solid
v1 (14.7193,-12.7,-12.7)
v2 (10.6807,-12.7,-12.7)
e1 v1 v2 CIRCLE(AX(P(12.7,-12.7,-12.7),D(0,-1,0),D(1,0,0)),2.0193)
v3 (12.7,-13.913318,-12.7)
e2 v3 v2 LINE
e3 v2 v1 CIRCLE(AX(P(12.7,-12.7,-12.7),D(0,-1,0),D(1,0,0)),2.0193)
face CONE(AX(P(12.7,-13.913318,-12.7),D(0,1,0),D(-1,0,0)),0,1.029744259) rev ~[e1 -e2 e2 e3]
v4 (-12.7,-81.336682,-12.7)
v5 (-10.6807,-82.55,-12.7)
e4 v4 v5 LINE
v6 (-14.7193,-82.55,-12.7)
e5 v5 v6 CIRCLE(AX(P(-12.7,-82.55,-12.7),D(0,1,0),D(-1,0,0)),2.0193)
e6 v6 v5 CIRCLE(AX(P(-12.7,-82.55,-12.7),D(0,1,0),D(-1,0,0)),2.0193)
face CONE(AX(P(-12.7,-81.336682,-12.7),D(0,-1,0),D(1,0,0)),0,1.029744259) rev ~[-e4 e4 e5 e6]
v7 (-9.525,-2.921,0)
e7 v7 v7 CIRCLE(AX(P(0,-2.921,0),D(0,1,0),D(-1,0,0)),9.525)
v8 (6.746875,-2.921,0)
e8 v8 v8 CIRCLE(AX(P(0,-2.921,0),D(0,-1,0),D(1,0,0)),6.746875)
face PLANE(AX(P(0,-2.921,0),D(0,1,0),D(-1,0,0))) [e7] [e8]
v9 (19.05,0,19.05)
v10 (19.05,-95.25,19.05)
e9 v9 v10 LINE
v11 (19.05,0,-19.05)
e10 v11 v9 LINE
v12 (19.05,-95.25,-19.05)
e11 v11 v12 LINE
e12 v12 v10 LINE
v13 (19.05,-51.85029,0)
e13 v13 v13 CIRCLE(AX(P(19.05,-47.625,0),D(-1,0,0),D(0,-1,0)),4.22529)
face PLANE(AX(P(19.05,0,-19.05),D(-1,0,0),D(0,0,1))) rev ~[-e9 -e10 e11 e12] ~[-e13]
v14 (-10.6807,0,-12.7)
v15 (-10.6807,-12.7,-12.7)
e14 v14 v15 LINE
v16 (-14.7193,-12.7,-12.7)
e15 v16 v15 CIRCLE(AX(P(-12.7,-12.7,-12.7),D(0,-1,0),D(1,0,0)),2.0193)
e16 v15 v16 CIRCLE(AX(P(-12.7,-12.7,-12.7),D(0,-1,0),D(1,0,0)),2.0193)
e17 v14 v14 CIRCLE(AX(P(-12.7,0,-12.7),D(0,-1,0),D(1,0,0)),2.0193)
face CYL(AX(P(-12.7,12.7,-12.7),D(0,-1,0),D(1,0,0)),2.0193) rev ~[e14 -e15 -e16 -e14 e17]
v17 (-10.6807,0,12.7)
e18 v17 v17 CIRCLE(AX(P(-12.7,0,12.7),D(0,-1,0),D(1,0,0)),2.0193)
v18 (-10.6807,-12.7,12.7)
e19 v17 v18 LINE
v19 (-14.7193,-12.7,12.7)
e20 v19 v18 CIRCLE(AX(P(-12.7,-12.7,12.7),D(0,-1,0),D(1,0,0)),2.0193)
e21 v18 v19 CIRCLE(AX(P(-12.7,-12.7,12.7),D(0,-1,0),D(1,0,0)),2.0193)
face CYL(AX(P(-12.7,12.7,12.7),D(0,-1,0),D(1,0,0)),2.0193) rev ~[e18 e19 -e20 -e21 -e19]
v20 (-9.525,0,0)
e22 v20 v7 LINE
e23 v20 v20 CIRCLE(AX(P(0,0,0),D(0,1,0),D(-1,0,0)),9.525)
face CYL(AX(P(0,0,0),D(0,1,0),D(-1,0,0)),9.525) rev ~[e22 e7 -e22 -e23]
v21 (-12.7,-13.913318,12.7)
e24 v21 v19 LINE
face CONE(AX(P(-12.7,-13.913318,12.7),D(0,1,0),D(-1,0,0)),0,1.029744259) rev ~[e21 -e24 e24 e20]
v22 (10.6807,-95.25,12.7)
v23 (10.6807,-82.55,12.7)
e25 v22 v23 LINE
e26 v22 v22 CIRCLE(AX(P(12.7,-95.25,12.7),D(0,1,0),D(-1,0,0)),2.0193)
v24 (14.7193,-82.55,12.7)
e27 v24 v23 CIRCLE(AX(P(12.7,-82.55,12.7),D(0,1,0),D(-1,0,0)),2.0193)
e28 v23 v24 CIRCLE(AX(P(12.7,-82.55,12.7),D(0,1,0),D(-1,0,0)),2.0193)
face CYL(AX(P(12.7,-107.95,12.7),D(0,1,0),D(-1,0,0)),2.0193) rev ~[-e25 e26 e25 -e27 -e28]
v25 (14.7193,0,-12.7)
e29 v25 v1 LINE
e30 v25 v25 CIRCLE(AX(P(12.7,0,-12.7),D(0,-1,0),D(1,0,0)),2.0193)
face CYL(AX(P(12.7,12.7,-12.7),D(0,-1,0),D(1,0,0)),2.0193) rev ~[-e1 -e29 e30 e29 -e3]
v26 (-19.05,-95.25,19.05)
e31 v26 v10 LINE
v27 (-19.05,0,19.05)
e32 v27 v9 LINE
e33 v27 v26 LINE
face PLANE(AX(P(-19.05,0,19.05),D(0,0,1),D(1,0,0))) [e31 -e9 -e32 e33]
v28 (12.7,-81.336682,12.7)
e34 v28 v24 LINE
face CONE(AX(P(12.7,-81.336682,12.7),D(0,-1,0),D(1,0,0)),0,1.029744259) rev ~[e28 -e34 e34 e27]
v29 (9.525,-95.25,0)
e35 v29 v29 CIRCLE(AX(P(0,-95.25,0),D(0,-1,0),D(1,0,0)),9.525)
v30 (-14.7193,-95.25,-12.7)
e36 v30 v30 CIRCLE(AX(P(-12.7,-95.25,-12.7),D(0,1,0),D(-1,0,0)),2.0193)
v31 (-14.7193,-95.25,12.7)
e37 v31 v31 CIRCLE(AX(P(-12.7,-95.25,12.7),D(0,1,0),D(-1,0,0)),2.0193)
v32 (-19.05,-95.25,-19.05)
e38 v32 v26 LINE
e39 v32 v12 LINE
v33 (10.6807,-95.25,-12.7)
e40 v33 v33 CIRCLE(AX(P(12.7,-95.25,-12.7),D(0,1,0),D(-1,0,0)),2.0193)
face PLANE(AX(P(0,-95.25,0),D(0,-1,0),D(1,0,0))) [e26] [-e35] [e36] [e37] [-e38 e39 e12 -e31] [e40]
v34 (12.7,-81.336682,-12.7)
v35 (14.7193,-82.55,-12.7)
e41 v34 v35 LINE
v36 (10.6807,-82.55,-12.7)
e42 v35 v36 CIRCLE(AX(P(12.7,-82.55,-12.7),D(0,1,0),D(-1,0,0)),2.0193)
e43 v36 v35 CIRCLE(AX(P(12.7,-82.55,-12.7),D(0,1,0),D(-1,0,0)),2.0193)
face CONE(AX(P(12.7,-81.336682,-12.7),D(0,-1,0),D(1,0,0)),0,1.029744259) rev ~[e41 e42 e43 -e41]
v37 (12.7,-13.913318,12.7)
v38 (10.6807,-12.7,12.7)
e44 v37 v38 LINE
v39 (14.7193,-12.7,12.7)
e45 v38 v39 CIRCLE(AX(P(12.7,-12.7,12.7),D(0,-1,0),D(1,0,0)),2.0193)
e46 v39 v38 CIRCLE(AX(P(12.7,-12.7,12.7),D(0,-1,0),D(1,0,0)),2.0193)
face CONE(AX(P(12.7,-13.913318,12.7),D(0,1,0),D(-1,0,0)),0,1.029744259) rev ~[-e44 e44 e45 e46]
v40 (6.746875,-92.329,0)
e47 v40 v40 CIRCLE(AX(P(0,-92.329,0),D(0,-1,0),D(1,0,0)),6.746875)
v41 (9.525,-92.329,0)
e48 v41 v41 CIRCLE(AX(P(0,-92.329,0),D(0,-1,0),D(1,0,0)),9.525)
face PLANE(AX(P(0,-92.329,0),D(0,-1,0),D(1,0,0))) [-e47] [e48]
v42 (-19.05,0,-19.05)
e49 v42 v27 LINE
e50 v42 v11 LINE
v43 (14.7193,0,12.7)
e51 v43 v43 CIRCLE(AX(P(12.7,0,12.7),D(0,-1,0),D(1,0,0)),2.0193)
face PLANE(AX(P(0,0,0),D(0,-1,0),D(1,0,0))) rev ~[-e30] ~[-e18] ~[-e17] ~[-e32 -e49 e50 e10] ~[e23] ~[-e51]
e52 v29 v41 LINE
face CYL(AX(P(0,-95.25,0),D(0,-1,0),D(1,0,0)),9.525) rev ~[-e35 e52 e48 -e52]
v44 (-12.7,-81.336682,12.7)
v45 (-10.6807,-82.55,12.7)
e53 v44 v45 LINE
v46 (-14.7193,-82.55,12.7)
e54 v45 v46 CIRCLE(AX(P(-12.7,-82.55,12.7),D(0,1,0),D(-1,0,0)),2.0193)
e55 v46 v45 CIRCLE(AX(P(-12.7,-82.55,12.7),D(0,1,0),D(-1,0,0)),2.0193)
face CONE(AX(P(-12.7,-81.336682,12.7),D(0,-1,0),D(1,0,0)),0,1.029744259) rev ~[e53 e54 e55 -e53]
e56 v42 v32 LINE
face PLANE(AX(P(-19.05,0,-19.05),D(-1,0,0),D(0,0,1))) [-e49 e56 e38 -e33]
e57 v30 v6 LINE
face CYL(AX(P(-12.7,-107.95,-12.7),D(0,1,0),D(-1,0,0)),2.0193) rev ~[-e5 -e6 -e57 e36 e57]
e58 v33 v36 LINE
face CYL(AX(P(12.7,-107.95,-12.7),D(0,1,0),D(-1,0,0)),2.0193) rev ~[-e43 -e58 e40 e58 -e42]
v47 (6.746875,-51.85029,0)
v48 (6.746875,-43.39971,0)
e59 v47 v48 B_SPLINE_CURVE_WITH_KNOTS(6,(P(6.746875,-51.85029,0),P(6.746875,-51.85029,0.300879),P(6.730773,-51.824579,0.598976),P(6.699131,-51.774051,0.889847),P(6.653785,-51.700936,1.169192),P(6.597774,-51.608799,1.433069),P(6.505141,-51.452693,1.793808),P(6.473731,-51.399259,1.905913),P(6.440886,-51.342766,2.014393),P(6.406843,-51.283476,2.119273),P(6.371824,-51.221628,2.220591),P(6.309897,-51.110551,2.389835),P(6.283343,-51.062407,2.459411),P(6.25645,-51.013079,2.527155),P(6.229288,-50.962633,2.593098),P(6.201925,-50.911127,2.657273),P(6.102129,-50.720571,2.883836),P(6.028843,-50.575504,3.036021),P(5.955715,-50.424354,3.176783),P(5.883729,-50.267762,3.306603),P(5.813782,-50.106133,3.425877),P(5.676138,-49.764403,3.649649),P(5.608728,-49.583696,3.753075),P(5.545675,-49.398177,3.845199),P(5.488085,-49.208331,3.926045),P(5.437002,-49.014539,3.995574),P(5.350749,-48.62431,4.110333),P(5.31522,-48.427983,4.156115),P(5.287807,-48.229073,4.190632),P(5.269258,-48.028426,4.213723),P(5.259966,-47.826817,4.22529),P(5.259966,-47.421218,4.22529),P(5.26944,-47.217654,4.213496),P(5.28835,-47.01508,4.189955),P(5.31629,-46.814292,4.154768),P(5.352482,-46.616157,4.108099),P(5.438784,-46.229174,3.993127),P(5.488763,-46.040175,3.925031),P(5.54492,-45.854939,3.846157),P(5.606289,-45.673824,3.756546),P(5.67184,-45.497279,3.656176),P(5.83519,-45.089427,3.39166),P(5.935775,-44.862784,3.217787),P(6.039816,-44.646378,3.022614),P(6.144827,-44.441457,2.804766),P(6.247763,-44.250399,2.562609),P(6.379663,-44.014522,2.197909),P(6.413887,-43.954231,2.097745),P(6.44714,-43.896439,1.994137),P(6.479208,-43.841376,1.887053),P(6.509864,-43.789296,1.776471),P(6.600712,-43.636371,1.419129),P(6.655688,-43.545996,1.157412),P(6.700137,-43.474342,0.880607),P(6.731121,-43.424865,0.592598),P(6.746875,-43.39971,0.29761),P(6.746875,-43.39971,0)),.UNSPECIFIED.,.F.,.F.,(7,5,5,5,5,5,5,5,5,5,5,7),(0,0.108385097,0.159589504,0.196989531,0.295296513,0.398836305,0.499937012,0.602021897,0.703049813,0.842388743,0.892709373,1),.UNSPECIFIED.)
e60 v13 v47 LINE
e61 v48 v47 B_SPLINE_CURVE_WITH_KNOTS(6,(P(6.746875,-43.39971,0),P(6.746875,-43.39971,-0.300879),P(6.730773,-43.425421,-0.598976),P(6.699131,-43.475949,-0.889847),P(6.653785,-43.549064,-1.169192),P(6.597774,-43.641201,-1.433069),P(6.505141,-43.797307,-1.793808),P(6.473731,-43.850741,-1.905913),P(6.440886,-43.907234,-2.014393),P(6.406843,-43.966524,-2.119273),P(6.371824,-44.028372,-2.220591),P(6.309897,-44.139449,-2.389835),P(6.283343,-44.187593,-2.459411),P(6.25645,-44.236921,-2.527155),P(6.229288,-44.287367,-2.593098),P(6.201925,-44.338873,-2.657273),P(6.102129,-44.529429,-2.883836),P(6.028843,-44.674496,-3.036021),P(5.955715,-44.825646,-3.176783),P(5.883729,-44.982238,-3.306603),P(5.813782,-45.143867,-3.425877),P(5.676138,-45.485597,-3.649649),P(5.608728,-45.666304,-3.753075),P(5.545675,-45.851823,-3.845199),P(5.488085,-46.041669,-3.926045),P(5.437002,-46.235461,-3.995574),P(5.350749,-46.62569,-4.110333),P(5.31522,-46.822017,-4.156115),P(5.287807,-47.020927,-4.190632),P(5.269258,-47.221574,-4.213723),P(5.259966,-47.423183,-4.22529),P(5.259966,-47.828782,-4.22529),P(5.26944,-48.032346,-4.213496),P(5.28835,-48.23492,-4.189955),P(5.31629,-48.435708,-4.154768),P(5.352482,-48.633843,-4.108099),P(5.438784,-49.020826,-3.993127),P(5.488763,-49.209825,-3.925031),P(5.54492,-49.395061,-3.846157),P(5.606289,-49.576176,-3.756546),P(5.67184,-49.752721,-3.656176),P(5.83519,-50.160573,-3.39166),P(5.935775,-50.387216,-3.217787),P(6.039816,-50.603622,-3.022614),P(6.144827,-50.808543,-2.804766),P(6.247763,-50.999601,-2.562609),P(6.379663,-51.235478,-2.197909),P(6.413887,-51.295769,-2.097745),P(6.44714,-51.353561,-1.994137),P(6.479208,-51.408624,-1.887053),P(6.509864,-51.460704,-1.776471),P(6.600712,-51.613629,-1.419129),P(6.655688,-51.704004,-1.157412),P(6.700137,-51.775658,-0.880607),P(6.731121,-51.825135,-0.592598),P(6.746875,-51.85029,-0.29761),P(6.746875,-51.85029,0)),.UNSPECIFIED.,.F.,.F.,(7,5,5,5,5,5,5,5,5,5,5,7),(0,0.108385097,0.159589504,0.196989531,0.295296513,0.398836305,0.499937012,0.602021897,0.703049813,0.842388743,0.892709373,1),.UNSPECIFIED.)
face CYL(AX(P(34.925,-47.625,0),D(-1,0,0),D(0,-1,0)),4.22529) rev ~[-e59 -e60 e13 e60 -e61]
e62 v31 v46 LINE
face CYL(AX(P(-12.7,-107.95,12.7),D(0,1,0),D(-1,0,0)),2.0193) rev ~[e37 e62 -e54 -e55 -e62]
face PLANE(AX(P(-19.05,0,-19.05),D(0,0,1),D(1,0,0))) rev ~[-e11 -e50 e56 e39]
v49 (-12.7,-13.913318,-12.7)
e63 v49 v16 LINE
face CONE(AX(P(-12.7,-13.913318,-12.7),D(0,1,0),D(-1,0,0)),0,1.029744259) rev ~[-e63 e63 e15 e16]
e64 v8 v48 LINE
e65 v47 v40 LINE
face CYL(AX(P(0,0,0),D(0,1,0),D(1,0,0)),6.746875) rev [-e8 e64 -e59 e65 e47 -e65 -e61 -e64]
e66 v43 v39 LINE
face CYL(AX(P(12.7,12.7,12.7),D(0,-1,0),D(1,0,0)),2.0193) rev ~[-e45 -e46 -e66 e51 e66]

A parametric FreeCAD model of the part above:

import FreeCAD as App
import Part
import Sketcher
Q = App.Units.Quantity

doc = App.newDocument("Part")
body = doc.addObject("PartDesign::Body", "Body")

sketch1 = body.newObject("Sketcher::SketchObject", "Sketch")
sketch1.AttachmentSupport = (doc.getObject("XZ_Plane"), [""])
sketch1.MapMode = "FlatFace"
sketch1.addGeometry(Part.LineSegment(App.Vector(-19.05, 19.05, 0), App.Vector(-19.05, -19.05, 0)), False)
sketch1.addGeometry(Part.LineSegment(App.Vector(-19.05, -19.05, 0), App.Vector(19.05, -19.05, 0)), False)
sketch1.addGeometry(Part.LineSegment(App.Vector(19.05, -19.05, 0), App.Vector(19.05, 19.05, 0)), False)
sketch1.addGeometry(Part.LineSegment(App.Vector(19.05, 19.05, 0), App.Vector(-19.05, 19.05, 0)), False)
sketch1.addGeometry(Part.Circle(App.Vector(0, 0, 0), App.Vector(0, 0, 1), 6.746875), False)
sketch1.addConstraint(Sketcher.Constraint("Coincident", 0, 2, 1, 1))
sketch1.addConstraint(Sketcher.Constraint("Coincident", 1, 2, 2, 1))
sketch1.addConstraint(Sketcher.Constraint("Coincident", 2, 2, 3, 1))
sketch1.addConstraint(Sketcher.Constraint("Coincident", 3, 2, 0, 1))
sketch1.addConstraint(Sketcher.Constraint("Vertical", 0))
sketch1.addConstraint(Sketcher.Constraint("Horizontal", 1))
sketch1.addConstraint(Sketcher.Constraint("Vertical", 2))
sketch1.addConstraint(Sketcher.Constraint("Horizontal", 3))
sketch1.addConstraint(Sketcher.Constraint("Coincident", 4, 3, -1, 1))
sketch1.addConstraint(Sketcher.Constraint("Symmetric", 0, 2, 2, 2, -1, 1))
sketch1.addConstraint(Sketcher.Constraint("Equal", 3, 0))
sketch1.addConstraint(Sketcher.Constraint("Diameter", 4, Q("0.53125 in")))
sketch1.addConstraint(Sketcher.Constraint("DistanceX", 1, 1, 1, 2, Q("1.5 in")))
pad1 = body.newObject("PartDesign::Pad", "Pad")
pad1.Profile = sketch1
pad1.Length = Q("3.75 in")

sketch2 = body.newObject("Sketcher::SketchObject", "Sketch001")
sketch2.AttachmentSupport = (doc.getObject("XZ_Plane"), [""])
sketch2.MapMode = "FlatFace"
sketch2.addGeometry(Part.Circle(App.Vector(12.7, -12.7, 0), App.Vector(0, 0, 1), 2.0193), False)
sketch2.addGeometry(Part.Circle(App.Vector(12.7, 12.7, 0), App.Vector(0, 0, 1), 2.0193), False)
sketch2.addGeometry(Part.Circle(App.Vector(-12.7, 12.7, 0), App.Vector(0, 0, 1), 2.0193), False)
sketch2.addGeometry(Part.Circle(App.Vector(-12.7, -12.7, 0), App.Vector(0, 0, 1), 2.0193), False)
sketch2.addConstraint(Sketcher.Constraint("Equal", 0, 1))
sketch2.addConstraint(Sketcher.Constraint("Equal", 1, 2))
sketch2.addConstraint(Sketcher.Constraint("Equal", 2, 3))
sketch2.addConstraint(Sketcher.Constraint("Symmetric", 0, 3, 2, 3, -1, 1))
sketch2.addConstraint(Sketcher.Constraint("Symmetric", 1, 3, 3, 3, -1, 1))
sketch2.addConstraint(Sketcher.Constraint("Symmetric", 1, 3, 2, 3, -2))
sketch2.addConstraint(Sketcher.Constraint("Diameter", 0, Q("0.159 in")))
sketch2.addConstraint(Sketcher.Constraint("DistanceY", 0, 3, 1, 3, Q("1 in")))
sketch2.addConstraint(Sketcher.Constraint("DistanceX", 2, 3, 1, 3, Q("1 in")))
doc.recompute()
hole = body.newObject("PartDesign::Hole", "Hole")
hole.Profile = sketch2
hole.ThreadType = "None"
hole.Diameter = Q("0.159 in")
hole.DepthType = "Dimension"
hole.Depth = Q("0.5 in")
hole.DrillPoint = "Angled"
hole.DrillPointAngle = 118
hole.Reversed = True

sketch3 = body.newObject("Sketcher::SketchObject", "Sketch002")
sketch3.AttachmentSupport = (doc.getObject("XZ_Plane"), [""])
sketch3.MapMode = "FlatFace"
sketch3.AttachmentOffset = App.Placement(App.Vector(0, 0, 3.75 * 25.4), App.Rotation())
sketch3.addGeometry(Part.Circle(App.Vector(-12.7, 12.7, 0), App.Vector(0, 0, 1), 2.0193), False)
sketch3.addGeometry(Part.Circle(App.Vector(-12.7, -12.7, 0), App.Vector(0, 0, 1), 2.0193), False)
sketch3.addGeometry(Part.Circle(App.Vector(12.7, -12.7, 0), App.Vector(0, 0, 1), 2.0193), False)
sketch3.addGeometry(Part.Circle(App.Vector(12.7, 12.7, 0), App.Vector(0, 0, 1), 2.0193), False)
sketch3.addConstraint(Sketcher.Constraint("Equal", 0, 1))
sketch3.addConstraint(Sketcher.Constraint("Equal", 1, 2))
sketch3.addConstraint(Sketcher.Constraint("Equal", 2, 3))
sketch3.addConstraint(Sketcher.Constraint("Symmetric", 0, 3, 2, 3, -1, 1))
sketch3.addConstraint(Sketcher.Constraint("Symmetric", 1, 3, 3, 3, -1, 1))
sketch3.addConstraint(Sketcher.Constraint("Symmetric", 1, 3, 2, 3, -2))
sketch3.addConstraint(Sketcher.Constraint("Diameter", 0, Q("0.159 in")))
sketch3.addConstraint(Sketcher.Constraint("DistanceY", 1, 3, 0, 3, Q("1 in")))
sketch3.addConstraint(Sketcher.Constraint("DistanceX", 1, 3, 2, 3, Q("1 in")))
doc.recompute()
hole2 = body.newObject("PartDesign::Hole", "Hole001")
hole2.Profile = sketch3
hole2.ThreadType = "None"
hole2.Diameter = Q("0.159 in")
hole2.DepthType = "Dimension"
hole2.Depth = Q("0.5 in")
hole2.DrillPoint = "Angled"
hole2.DrillPointAngle = 118

sketch4 = body.newObject("Sketcher::SketchObject", "Sketch003")
sketch4.AttachmentSupport = (doc.getObject("XZ_Plane"), [""])
sketch4.MapMode = "FlatFace"
sketch4.AttachmentOffset = App.Placement(App.Vector(0, 0, 3.75 * 25.4), App.Rotation())
sketch4.addGeometry(Part.Circle(App.Vector(0, 0, 0), App.Vector(0, 0, 1), 9.525), False)
sketch4.addGeometry(Part.Circle(App.Vector(0, 0, 0), App.Vector(0, 0, 1), 6.746875), False)
sketch4.addConstraint(Sketcher.Constraint("Coincident", 0, 3, -1, 1))
sketch4.addConstraint(Sketcher.Constraint("Coincident", 1, 3, -1, 1))
sketch4.addConstraint(Sketcher.Constraint("Diameter", 0, Q("0.75 in")))
sketch4.addConstraint(Sketcher.Constraint("Diameter", 1, Q("0.53125 in")))
pocket1 = body.newObject("PartDesign::Pocket", "Pocket")
pocket1.Profile = sketch4
pocket1.Length = Q("0.115 in")

sketch5 = body.newObject("Sketcher::SketchObject", "Sketch004")
sketch5.AttachmentSupport = (doc.getObject("XZ_Plane"), [""])
sketch5.MapMode = "FlatFace"
sketch5.addGeometry(Part.Circle(App.Vector(0, 0, 0), App.Vector(0, 0, 1), 9.525), False)
sketch5.addGeometry(Part.Circle(App.Vector(0, 0, 0), App.Vector(0, 0, 1), 6.746875), False)
sketch5.addConstraint(Sketcher.Constraint("Coincident", 0, 3, -1, 1))
sketch5.addConstraint(Sketcher.Constraint("Coincident", 1, 3, -1, 1))
sketch5.addConstraint(Sketcher.Constraint("Diameter", 0, Q("0.75 in")))
sketch5.addConstraint(Sketcher.Constraint("Diameter", 1, Q("0.53125 in")))
pocket2 = body.newObject("PartDesign::Pocket", "Pocket001")
pocket2.Profile = sketch5
pocket2.Length = Q("0.115 in")
pocket2.Reversed = True

sketch6 = body.newObject("Sketcher::SketchObject", "Sketch005")
sketch6.AttachmentSupport = (doc.getObject("YZ_Plane"), [""])
sketch6.MapMode = "FlatFace"
sketch6.AttachmentOffset = App.Placement(App.Vector(0, 0, 0.75 * 25.4), App.Rotation())
sketch6.addGeometry(Part.Circle(App.Vector(-47.625, 0, 0), App.Vector(0, 0, 1), 4.22529), False)
sketch6.addConstraint(Sketcher.Constraint("PointOnObject", 0, 3, -1))
sketch6.addConstraint(Sketcher.Constraint("Diameter", 0, Q("0.3327 in")))
sketch6.addConstraint(Sketcher.Constraint("DistanceX", 0, 3, -1, 1, Q("1.875 in")))
doc.recompute()
hole3 = body.newObject("PartDesign::Hole", "Hole002")
hole3.Profile = sketch6
hole3.ThreadType = "None"
hole3.Diameter = Q("0.3327 in")
hole3.DepthType = "Dimension"
hole3.Depth = Q("0.625 in")
hole3.DrillPoint = "Angled"
hole3.DrillPointAngle = 118

doc.recompute()
